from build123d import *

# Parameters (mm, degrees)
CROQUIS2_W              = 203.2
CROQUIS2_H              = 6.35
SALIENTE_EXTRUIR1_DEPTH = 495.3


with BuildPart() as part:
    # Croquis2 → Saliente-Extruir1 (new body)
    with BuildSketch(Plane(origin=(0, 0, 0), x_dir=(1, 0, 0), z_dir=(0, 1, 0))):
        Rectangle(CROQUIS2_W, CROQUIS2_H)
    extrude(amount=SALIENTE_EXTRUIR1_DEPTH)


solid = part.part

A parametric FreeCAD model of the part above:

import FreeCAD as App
import Part
import Sketcher
Q = App.Units.Quantity


def add_polygon(sketch, points):
    """Adds a closed chain of lines whose ends are joined by coincident constraints."""
    first, n = sketch.GeometryCount, len(points)
    for a, b in zip(points, points[1:] + points[:1]):
        sketch.addGeometry(Part.LineSegment(App.Vector(*a, 0), App.Vector(*b, 0)), False)
    for i in range(n):
        sketch.addConstraint(Sketcher.Constraint("Coincident", first + i, 2, first + (i + 1) % n, 1))

doc = App.newDocument("Part")
body = doc.addObject("PartDesign::Body", "Body")

sketch1 = body.newObject("Sketcher::SketchObject", "Sketch")
sketch1.AttachmentSupport = (doc.getObject("XZ_Plane"), [""])
sketch1.MapMode = "FlatFace"
add_polygon(sketch1, [(-101.6, -3.175), (-101.6, 3.175), (101.6, 3.175), (101.6, -3.175)])
sketch1.addConstraint([
    Sketcher.Constraint("Vertical", 0),
    Sketcher.Constraint("Horizontal", 1),
    Sketcher.Constraint("Vertical", 2),
    Sketcher.Constraint("Horizontal", 3),
    Sketcher.Constraint("Symmetric", 0, 2, 2, 2, -1, 1),
    Sketcher.Constraint("DistanceX", 1, 1, 1, 2, Q("8 in")),
    Sketcher.Constraint("DistanceY", 0, 1, 0, 2, Q("0.25 in")),
])
pad1 = body.newObject("PartDesign::Pad", "Pad")
pad1.Profile = sketch1
pad1.Length = Q("19.5 in")
pad1.Reversed = True

doc.recompute()
